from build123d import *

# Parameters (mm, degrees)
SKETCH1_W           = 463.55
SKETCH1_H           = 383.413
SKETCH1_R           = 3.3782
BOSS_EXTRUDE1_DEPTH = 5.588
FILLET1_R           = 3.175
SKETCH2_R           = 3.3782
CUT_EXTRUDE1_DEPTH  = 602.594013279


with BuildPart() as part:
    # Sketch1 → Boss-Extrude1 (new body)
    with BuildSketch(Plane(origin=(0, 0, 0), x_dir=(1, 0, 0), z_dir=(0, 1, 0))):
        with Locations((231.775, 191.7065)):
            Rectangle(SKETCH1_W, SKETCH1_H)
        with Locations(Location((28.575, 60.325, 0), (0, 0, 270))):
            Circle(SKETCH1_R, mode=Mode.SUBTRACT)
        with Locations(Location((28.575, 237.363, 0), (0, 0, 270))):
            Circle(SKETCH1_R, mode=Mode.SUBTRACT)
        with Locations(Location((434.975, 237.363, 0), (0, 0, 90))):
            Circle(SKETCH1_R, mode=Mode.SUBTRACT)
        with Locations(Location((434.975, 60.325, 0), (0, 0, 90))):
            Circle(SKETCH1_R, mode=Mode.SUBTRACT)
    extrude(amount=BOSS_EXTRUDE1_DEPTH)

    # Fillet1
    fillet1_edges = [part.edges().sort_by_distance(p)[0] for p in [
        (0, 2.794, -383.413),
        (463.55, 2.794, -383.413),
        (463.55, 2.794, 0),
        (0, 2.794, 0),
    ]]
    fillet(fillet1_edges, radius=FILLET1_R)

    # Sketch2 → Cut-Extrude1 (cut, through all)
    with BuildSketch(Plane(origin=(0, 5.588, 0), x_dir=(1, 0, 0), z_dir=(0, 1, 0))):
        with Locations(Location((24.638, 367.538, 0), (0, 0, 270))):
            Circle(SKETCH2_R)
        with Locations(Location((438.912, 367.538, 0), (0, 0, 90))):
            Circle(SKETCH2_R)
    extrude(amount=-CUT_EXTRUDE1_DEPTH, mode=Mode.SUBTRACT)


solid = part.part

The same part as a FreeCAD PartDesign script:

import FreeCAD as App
import Part
import Sketcher
Q = App.Units.Quantity


def edges_at(feature, points):
    """Names of the edges that pass closest to the given points."""
    edges = feature.Shape.Edges
    near = lambda p: min(range(len(edges)), key=lambda i: edges[i].distToShape(Part.Vertex(*p))[0])
    return sorted({f"Edge{near(p) + 1}" for p in points})

doc = App.newDocument("Part")
body = doc.addObject("PartDesign::Body", "Body")

# Sketch on XZ plane
sketch1 = body.newObject("Sketcher::SketchObject", "Sketch")
sketch1.AttachmentSupport = (doc.getObject("XZ_Plane"), [""])
sketch1.MapMode = "FlatFace"
sketch1.addGeometry([
    Part.LineSegment(App.Vector(0, -383.4, 0), App.Vector(0, 0, 0)),  # 0
    Part.LineSegment(App.Vector(0, 0, 0), App.Vector(463.6, 0, 0)),  # 1
    Part.LineSegment(App.Vector(463.6, 0, 0), App.Vector(463.6, -383.4, 0)),  # 2
    Part.LineSegment(App.Vector(463.6, -383.4, 0), App.Vector(0, -383.4, 0)),  # 3
    Part.Circle(App.Vector(28.6, -60.3, 0), App.Vector(0, 0, 1), 3.4),  # 4
    Part.Circle(App.Vector(435, -60.3, 0), App.Vector(0, 0, 1), 3.4),  # 5
    Part.Circle(App.Vector(28.6, -237.4, 0), App.Vector(0, 0, 1), 3.4),  # 6
    Part.Circle(App.Vector(435, -237.4, 0), App.Vector(0, 0, 1), 3.4),  # 7
], False)
sketch1.addConstraint([
    Sketcher.Constraint("Coincident", 0, 2, 1, 1),
    Sketcher.Constraint("Coincident", 1, 2, 2, 1),
    Sketcher.Constraint("Coincident", 2, 2, 3, 1),
    Sketcher.Constraint("Coincident", 3, 2, 0, 1),
    Sketcher.Constraint("Vertical", 0),
    Sketcher.Constraint("Horizontal", 1),
    Sketcher.Constraint("Vertical", 2),
    Sketcher.Constraint("Horizontal", 3),
    Sketcher.Constraint("Coincident", 0, 2, -1, 1),
    Sketcher.Constraint("Equal", 4, 5),
    Sketcher.Constraint("Equal", 5, 6),
    Sketcher.Constraint("Equal", 6, 7),
    Sketcher.Constraint("Horizontal", 4, 3, 5, 3),
    Sketcher.Constraint("Horizontal", 6, 3, 7, 3),
    Sketcher.Constraint("Vertical", 4, 3, 6, 3),
    Sketcher.Constraint("Vertical", 5, 3, 7, 3),
    Sketcher.Constraint("Diameter", 4, Q("0.266 in")),
    Sketcher.Constraint("DistanceX", 4, 3, 5, 3, Q("16 in")),
    Sketcher.Constraint("DistanceX", 1, 1, 1, 2, Q("18.25 in")),
    Sketcher.Constraint("DistanceY", 0, 1, 0, 2, Q("15.095 in")),
    Sketcher.Constraint("DistanceY", 6, 3, 4, 3, Q("6.97 in")),
    Sketcher.Constraint("DistanceY", 2, 2, 7, 3, Q("5.75 in")),
    Sketcher.Constraint("DistanceX", -1, 1, 4, 3, Q("1.125 in")),
])
pad1 = body.newObject("PartDesign::Pad", "Pad")
pad1.Profile = sketch1
pad1.Length = Q("0.22 in")
pad1.Reversed = True
doc.recompute()

fillet = body.newObject("PartDesign::Fillet", "Fillet")
fillet.Base = (pad1, edges_at(pad1, [
    (0, 2.794, -383.413),
    (463.55, 2.794, -383.413),
    (463.55, 2.794, 0),
    (0, 2.794, 0),
]))
fillet.Radius = Q("0.125 in")

# Sketch on XZ plane
sketch2 = body.newObject("Sketcher::SketchObject", "Sketch001")
sketch2.AttachmentSupport = (doc.getObject("XZ_Plane"), [""])
sketch2.MapMode = "FlatFace"
sketch2.AttachmentOffset = App.Placement(App.Vector(0, 0, -0.22 * 25.4), App.Rotation())
sketch2.addGeometry([
    Part.Circle(App.Vector(24.6, -367.5, 0), App.Vector(0, 0, 1), 3.4),
    Part.Circle(App.Vector(438.9, -367.5, 0), App.Vector(0, 0, 1), 3.4),
], False)
sketch2.addConstraint([
    Sketcher.Constraint("Equal", 0, 1),
    Sketcher.Constraint("Horizontal", 0, 3, 1, 3),
    Sketcher.Constraint("Diameter", 0, Q("0.266 in")),
    Sketcher.Constraint("DistanceX", -1, 1, 0, 3, Q("0.97 in")),
    Sketcher.Constraint("DistanceY", 0, 3, -1, 1, Q("14.47 in")),
    Sketcher.Constraint("DistanceX", -1, 1, 1, 3, Q("17.28 in")),
])
pocket1 = body.newObject("PartDesign::Pocket", "Pocket")
pocket1.Profile = sketch2
pocket1.Type = "ThroughAll"
pocket1.Reversed = True

doc.recompute()
